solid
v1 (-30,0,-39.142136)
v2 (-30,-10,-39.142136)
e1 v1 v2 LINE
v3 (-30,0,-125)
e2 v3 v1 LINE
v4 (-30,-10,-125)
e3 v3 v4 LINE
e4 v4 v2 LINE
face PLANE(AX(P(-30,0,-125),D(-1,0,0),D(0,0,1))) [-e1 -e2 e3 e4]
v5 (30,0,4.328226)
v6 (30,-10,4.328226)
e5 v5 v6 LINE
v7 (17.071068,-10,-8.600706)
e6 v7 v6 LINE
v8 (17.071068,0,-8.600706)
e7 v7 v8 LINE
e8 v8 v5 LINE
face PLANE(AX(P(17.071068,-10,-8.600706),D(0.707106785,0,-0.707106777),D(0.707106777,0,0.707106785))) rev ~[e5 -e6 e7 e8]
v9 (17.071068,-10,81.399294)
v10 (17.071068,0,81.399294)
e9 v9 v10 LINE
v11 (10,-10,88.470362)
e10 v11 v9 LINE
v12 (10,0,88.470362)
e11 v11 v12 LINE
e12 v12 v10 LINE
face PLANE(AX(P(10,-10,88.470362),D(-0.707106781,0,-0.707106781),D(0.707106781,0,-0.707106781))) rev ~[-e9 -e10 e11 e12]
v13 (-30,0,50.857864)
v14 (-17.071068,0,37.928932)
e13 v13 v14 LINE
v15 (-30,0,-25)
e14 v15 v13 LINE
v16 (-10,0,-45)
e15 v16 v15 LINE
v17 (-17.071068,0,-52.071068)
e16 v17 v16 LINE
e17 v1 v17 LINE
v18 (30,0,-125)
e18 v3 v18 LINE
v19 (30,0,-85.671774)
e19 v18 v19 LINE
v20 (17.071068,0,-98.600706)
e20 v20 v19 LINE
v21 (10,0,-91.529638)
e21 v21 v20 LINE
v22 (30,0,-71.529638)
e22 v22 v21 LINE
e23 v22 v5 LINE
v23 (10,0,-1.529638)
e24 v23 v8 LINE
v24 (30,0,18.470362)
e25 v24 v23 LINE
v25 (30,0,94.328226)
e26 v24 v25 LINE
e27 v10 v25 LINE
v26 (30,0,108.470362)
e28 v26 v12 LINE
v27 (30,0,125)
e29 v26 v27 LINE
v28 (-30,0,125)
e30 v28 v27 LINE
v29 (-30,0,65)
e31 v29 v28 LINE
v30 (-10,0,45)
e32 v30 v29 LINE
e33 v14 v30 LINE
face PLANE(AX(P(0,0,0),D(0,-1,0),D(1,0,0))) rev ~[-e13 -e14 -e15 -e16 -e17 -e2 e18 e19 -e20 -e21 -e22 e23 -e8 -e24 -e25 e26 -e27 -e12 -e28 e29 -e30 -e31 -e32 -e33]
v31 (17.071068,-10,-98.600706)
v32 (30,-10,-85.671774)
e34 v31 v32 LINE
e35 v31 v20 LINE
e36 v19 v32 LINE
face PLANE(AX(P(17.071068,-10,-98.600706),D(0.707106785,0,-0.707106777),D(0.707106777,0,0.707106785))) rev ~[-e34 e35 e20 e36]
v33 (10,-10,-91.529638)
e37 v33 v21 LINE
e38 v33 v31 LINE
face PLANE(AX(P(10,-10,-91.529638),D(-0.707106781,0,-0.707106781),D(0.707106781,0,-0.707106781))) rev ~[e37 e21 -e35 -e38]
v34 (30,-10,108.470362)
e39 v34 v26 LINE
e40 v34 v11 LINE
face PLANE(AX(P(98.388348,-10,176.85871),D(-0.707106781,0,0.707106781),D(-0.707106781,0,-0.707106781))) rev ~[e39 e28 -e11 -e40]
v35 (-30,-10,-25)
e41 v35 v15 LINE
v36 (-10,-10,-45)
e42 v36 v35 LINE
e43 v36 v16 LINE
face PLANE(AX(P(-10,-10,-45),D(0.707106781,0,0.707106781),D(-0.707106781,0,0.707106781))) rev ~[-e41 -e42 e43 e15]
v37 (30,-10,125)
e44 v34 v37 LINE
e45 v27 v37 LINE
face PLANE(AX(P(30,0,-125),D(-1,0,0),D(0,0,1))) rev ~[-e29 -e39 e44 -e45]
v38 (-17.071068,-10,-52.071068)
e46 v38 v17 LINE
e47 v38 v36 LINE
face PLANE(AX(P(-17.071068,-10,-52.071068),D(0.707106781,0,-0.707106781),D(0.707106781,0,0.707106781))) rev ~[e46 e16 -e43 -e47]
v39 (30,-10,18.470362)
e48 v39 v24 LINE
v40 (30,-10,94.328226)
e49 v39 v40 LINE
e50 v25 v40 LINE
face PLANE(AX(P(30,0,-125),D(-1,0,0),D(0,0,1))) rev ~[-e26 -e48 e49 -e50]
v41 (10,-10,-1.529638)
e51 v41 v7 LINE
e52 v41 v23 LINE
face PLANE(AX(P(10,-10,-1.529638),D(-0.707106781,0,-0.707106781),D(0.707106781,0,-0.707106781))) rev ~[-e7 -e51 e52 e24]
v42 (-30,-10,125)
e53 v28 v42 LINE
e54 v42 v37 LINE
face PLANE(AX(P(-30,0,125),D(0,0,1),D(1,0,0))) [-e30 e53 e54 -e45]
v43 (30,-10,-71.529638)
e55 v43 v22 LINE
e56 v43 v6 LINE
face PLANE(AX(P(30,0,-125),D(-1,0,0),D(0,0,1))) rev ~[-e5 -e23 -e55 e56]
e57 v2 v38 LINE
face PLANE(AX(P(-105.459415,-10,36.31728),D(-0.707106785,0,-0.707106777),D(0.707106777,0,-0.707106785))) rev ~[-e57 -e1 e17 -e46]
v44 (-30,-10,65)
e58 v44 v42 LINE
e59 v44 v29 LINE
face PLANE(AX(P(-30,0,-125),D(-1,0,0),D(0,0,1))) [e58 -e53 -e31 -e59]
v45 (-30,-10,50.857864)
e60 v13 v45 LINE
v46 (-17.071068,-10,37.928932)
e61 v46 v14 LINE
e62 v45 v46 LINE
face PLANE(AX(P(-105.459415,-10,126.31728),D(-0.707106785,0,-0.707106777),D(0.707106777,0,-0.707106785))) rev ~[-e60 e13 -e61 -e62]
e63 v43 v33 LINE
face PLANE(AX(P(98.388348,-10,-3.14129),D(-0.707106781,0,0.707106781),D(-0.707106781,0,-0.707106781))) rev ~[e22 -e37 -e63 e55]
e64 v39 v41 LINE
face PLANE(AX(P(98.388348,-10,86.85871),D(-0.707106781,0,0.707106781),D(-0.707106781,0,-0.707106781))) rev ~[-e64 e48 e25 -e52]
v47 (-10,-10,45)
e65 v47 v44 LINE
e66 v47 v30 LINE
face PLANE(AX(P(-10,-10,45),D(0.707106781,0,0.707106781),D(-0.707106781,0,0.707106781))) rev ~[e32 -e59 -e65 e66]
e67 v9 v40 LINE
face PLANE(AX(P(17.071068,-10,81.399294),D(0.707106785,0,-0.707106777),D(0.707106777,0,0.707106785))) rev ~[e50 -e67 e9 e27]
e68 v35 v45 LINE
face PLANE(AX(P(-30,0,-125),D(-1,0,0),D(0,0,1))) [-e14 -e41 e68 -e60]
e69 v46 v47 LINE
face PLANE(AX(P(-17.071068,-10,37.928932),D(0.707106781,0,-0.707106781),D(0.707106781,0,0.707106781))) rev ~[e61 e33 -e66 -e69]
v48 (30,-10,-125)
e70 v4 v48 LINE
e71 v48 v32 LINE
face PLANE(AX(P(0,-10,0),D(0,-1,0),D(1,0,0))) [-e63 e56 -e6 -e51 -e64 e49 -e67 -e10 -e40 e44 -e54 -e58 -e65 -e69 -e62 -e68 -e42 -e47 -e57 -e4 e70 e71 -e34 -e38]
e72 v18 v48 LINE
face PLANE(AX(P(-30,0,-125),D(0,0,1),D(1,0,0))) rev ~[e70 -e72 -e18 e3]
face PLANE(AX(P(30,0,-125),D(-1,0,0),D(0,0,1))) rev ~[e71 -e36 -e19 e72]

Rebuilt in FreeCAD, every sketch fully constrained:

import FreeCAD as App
import Part
import Sketcher
Q = App.Units.Quantity

doc = App.newDocument("Part")
params = doc.addObject("Spreadsheet::Sheet", "Params")
for row, (alias, value) in enumerate([
    ("sketch1_width", "60 mm"),
    ("sketch1_height", "250 mm"),
    ("pad1_length", "10 mm"),
    ("sketch2_length", "125 mm"),
    ("sketch2_length2", "10 mm"),
    ("pocket1_length", "10 mm"),
], start=1):
    params.set(f"A{row}", alias)
    params.set(f"B{row}", "=" + value)
    params.setAlias(f"B{row}", alias)

body = doc.addObject("PartDesign::Body", "Body")

# Sketch on XZ plane
sketch1 = body.newObject("Sketcher::SketchObject", "Sketch")
sketch1.AttachmentSupport = (doc.getObject("XZ_Plane"), [""])
sketch1.MapMode = "FlatFace"
sketch1.addGeometry([
    Part.LineSegment(App.Vector(-30, 125, 0), App.Vector(-30, -125, 0)),
    Part.LineSegment(App.Vector(-30, -125, 0), App.Vector(30, -125, 0)),
    Part.LineSegment(App.Vector(30, -125, 0), App.Vector(30, 125, 0)),
    Part.LineSegment(App.Vector(30, 125, 0), App.Vector(-30, 125, 0)),
], False)
sketch1.addConstraint([
    Sketcher.Constraint("Coincident", 0, 2, 1, 1),
    Sketcher.Constraint("Coincident", 1, 2, 2, 1),
    Sketcher.Constraint("Coincident", 2, 2, 3, 1),
    Sketcher.Constraint("Coincident", 3, 2, 0, 1),
    Sketcher.Constraint("Vertical", 0),
    Sketcher.Constraint("Horizontal", 1),
    Sketcher.Constraint("Vertical", 2),
    Sketcher.Constraint("Horizontal", 3),
    Sketcher.Constraint("Symmetric", 0, 2, 2, 2, -1, 1),
    Sketcher.Constraint("DistanceX", 1, 1, 1, 2, Q("60 mm")),
    Sketcher.Constraint("DistanceY", 0, 2, 0, 1, Q("250 mm")),
])
sketch1.setExpression("Constraints[9]", "Params.sketch1_width")
sketch1.setExpression("Constraints[10]", "Params.sketch1_height")
pad1 = body.newObject("PartDesign::Pad", "Pad")
pad1.Profile = sketch1
pad1.setExpression("Length", "Params.pad1_length")

# Sketch on XZ plane
sketch2 = body.newObject("Sketcher::SketchObject", "Sketch001")
sketch2.AttachmentSupport = (doc.getObject("XZ_Plane"), [""])
sketch2.MapMode = "FlatFace"
sketch2.AttachmentOffset = App.Placement(App.Vector(0, 0, 10), App.Rotation())
sketch2.addGeometry([
    Part.LineSegment(App.Vector(98, 177, 0), App.Vector(10, 88, 0)),  # 0
    Part.LineSegment(App.Vector(10, 88, 0), App.Vector(17, 81, 0)),  # 1
    Part.LineSegment(App.Vector(17, 81, 0), App.Vector(105, 170, 0)),  # 2
    Part.LineSegment(App.Vector(105, 170, 0), App.Vector(98, 177, 0)),  # 3
    Part.LineSegment(App.Vector(17, -9, 0), App.Vector(105, 80, 0)),  # 4
    Part.LineSegment(App.Vector(105, 80, 0), App.Vector(98, 87, 0)),  # 5
    Part.LineSegment(App.Vector(98, 87, 0), App.Vector(10, -2, 0)),  # 6
    Part.LineSegment(App.Vector(10, -2, 0), App.Vector(17, -9, 0)),  # 7
    Part.LineSegment(App.Vector(17, -99, 0), App.Vector(105, -10, 0)),  # 8
    Part.LineSegment(App.Vector(105, -10, 0), App.Vector(98, -3, 0)),  # 9
    Part.LineSegment(App.Vector(98, -3, 0), App.Vector(10, -92, 0)),  # 10
    Part.LineSegment(App.Vector(10, -92, 0), App.Vector(17, -99, 0)),  # 11
    Part.LineSegment(App.Vector(-17, 38, 0), App.Vector(-10, 45, 0)),  # 12
    Part.LineSegment(App.Vector(-10, 45, 0), App.Vector(-98, 133, 0)),  # 13
    Part.LineSegment(App.Vector(-98, 133, 0), App.Vector(-105, 126, 0)),  # 14
    Part.LineSegment(App.Vector(-105, 126, 0), App.Vector(-17, 38, 0)),  # 15
    Part.LineSegment(App.Vector(-17, -52, 0), App.Vector(-10, -45, 0)),  # 16
    Part.LineSegment(App.Vector(-10, -45, 0), App.Vector(-98, 43, 0)),  # 17
    Part.LineSegment(App.Vector(-98, 43, 0), App.Vector(-105, 36, 0)),  # 18
    Part.LineSegment(App.Vector(-105, 36, 0), App.Vector(-17, -52, 0)),  # 19
], False)
sketch2.addConstraint([
    Sketcher.Constraint("Coincident", 0, 2, 1, 1),
    Sketcher.Constraint("Coincident", 1, 2, 2, 1),
    Sketcher.Constraint("Coincident", 2, 2, 3, 1),
    Sketcher.Constraint("Coincident", 3, 2, 0, 1),
    Sketcher.Constraint("Coincident", 4, 2, 5, 1),
    Sketcher.Constraint("Coincident", 5, 2, 6, 1),
    Sketcher.Constraint("Coincident", 6, 2, 7, 1),
    Sketcher.Constraint("Coincident", 7, 2, 4, 1),
    Sketcher.Constraint("Coincident", 8, 2, 9, 1),
    Sketcher.Constraint("Coincident", 9, 2, 10, 1),
    Sketcher.Constraint("Coincident", 10, 2, 11, 1),
    Sketcher.Constraint("Coincident", 11, 2, 8, 1),
    Sketcher.Constraint("Coincident", 12, 2, 13, 1),
    Sketcher.Constraint("Coincident", 13, 2, 14, 1),
    Sketcher.Constraint("Coincident", 14, 2, 15, 1),
    Sketcher.Constraint("Coincident", 15, 2, 12, 1),
    Sketcher.Constraint("Coincident", 16, 2, 17, 1),
    Sketcher.Constraint("Coincident", 17, 2, 18, 1),
    Sketcher.Constraint("Coincident", 18, 2, 19, 1),
    Sketcher.Constraint("Coincident", 19, 2, 16, 1),
    Sketcher.Constraint("Symmetric", 12, 2, 16, 2, -1),
    Sketcher.Constraint("Perpendicular", 0, 1),
    Sketcher.Constraint("Perpendicular", 1, 2),
    Sketcher.Constraint("Perpendicular", 2, 3),
    Sketcher.Constraint("Perpendicular", 3, 4),
    Sketcher.Constraint("Perpendicular", 4, 5),
    Sketcher.Constraint("Perpendicular", 5, 6),
    Sketcher.Constraint("Perpendicular", 6, 7),
    Sketcher.Constraint("Perpendicular", 7, 8),
    Sketcher.Constraint("Perpendicular", 8, 9),
    Sketcher.Constraint("Perpendicular", 9, 10),
    Sketcher.Constraint("Perpendicular", 10, 11),
    Sketcher.Constraint("Perpendicular", 11, 12),
    Sketcher.Constraint("Perpendicular", 12, 13),
    Sketcher.Constraint("Perpendicular", 13, 14),
    Sketcher.Constraint("Perpendicular", 14, 15),
    Sketcher.Constraint("Perpendicular", 15, 16),
    Sketcher.Constraint("Perpendicular", 16, 17),
    Sketcher.Constraint("Perpendicular", 17, 18),
    Sketcher.Constraint("Perpendicular", 18, 19),
    Sketcher.Constraint("Vertical", 2, 2, 4, 2),
    Sketcher.Constraint("Vertical", 3, 2, 5, 2),
    Sketcher.Constraint("Vertical", 0, 2, 6, 2),
    Sketcher.Constraint("Vertical", 4, 2, 8, 2),
    Sketcher.Constraint("Vertical", 5, 2, 9, 2),
    Sketcher.Constraint("Vertical", 6, 2, 10, 2),
    Sketcher.Constraint("Vertical", 13, 2, 17, 2),
    Sketcher.Constraint("Vertical", 14, 2, 18, 2),
    Sketcher.Constraint("Equal", 11, 12),
    Sketcher.Constraint("Equal", 10, 13),
    Sketcher.Constraint("Angle", 0, Q("-135 deg")),
    Sketcher.Constraint("Distance", 0, Q("125 mm")),
    Sketcher.Constraint("Distance", 1, Q("10 mm")),
    Sketcher.Constraint("DistanceX", -1, 1, 0, 2, Q("10 mm")),
    Sketcher.Constraint("DistanceX", 12, 2, -1, 1, Q("10 mm")),
    Sketcher.Constraint("DistanceY", -1, 1, 12, 2, Q("45 mm")),
    Sketcher.Constraint("DistanceY", 4, 2, 2, 2, Q("90 mm")),
    Sketcher.Constraint("DistanceY", 8, 2, 4, 2, Q("90 mm")),
    Sketcher.Constraint("DistanceY", -1, 1, 0, 2, Q("88.470362 mm")),
])
sketch2.setExpression("Constraints[51]", "Params.sketch2_length")
sketch2.setExpression("Constraints[52]", "Params.sketch2_length2")
pocket1 = body.newObject("PartDesign::Pocket", "Pocket")
pocket1.Profile = sketch2
pocket1.setExpression("Length", "Params.pocket1_length")

doc.recompute()
